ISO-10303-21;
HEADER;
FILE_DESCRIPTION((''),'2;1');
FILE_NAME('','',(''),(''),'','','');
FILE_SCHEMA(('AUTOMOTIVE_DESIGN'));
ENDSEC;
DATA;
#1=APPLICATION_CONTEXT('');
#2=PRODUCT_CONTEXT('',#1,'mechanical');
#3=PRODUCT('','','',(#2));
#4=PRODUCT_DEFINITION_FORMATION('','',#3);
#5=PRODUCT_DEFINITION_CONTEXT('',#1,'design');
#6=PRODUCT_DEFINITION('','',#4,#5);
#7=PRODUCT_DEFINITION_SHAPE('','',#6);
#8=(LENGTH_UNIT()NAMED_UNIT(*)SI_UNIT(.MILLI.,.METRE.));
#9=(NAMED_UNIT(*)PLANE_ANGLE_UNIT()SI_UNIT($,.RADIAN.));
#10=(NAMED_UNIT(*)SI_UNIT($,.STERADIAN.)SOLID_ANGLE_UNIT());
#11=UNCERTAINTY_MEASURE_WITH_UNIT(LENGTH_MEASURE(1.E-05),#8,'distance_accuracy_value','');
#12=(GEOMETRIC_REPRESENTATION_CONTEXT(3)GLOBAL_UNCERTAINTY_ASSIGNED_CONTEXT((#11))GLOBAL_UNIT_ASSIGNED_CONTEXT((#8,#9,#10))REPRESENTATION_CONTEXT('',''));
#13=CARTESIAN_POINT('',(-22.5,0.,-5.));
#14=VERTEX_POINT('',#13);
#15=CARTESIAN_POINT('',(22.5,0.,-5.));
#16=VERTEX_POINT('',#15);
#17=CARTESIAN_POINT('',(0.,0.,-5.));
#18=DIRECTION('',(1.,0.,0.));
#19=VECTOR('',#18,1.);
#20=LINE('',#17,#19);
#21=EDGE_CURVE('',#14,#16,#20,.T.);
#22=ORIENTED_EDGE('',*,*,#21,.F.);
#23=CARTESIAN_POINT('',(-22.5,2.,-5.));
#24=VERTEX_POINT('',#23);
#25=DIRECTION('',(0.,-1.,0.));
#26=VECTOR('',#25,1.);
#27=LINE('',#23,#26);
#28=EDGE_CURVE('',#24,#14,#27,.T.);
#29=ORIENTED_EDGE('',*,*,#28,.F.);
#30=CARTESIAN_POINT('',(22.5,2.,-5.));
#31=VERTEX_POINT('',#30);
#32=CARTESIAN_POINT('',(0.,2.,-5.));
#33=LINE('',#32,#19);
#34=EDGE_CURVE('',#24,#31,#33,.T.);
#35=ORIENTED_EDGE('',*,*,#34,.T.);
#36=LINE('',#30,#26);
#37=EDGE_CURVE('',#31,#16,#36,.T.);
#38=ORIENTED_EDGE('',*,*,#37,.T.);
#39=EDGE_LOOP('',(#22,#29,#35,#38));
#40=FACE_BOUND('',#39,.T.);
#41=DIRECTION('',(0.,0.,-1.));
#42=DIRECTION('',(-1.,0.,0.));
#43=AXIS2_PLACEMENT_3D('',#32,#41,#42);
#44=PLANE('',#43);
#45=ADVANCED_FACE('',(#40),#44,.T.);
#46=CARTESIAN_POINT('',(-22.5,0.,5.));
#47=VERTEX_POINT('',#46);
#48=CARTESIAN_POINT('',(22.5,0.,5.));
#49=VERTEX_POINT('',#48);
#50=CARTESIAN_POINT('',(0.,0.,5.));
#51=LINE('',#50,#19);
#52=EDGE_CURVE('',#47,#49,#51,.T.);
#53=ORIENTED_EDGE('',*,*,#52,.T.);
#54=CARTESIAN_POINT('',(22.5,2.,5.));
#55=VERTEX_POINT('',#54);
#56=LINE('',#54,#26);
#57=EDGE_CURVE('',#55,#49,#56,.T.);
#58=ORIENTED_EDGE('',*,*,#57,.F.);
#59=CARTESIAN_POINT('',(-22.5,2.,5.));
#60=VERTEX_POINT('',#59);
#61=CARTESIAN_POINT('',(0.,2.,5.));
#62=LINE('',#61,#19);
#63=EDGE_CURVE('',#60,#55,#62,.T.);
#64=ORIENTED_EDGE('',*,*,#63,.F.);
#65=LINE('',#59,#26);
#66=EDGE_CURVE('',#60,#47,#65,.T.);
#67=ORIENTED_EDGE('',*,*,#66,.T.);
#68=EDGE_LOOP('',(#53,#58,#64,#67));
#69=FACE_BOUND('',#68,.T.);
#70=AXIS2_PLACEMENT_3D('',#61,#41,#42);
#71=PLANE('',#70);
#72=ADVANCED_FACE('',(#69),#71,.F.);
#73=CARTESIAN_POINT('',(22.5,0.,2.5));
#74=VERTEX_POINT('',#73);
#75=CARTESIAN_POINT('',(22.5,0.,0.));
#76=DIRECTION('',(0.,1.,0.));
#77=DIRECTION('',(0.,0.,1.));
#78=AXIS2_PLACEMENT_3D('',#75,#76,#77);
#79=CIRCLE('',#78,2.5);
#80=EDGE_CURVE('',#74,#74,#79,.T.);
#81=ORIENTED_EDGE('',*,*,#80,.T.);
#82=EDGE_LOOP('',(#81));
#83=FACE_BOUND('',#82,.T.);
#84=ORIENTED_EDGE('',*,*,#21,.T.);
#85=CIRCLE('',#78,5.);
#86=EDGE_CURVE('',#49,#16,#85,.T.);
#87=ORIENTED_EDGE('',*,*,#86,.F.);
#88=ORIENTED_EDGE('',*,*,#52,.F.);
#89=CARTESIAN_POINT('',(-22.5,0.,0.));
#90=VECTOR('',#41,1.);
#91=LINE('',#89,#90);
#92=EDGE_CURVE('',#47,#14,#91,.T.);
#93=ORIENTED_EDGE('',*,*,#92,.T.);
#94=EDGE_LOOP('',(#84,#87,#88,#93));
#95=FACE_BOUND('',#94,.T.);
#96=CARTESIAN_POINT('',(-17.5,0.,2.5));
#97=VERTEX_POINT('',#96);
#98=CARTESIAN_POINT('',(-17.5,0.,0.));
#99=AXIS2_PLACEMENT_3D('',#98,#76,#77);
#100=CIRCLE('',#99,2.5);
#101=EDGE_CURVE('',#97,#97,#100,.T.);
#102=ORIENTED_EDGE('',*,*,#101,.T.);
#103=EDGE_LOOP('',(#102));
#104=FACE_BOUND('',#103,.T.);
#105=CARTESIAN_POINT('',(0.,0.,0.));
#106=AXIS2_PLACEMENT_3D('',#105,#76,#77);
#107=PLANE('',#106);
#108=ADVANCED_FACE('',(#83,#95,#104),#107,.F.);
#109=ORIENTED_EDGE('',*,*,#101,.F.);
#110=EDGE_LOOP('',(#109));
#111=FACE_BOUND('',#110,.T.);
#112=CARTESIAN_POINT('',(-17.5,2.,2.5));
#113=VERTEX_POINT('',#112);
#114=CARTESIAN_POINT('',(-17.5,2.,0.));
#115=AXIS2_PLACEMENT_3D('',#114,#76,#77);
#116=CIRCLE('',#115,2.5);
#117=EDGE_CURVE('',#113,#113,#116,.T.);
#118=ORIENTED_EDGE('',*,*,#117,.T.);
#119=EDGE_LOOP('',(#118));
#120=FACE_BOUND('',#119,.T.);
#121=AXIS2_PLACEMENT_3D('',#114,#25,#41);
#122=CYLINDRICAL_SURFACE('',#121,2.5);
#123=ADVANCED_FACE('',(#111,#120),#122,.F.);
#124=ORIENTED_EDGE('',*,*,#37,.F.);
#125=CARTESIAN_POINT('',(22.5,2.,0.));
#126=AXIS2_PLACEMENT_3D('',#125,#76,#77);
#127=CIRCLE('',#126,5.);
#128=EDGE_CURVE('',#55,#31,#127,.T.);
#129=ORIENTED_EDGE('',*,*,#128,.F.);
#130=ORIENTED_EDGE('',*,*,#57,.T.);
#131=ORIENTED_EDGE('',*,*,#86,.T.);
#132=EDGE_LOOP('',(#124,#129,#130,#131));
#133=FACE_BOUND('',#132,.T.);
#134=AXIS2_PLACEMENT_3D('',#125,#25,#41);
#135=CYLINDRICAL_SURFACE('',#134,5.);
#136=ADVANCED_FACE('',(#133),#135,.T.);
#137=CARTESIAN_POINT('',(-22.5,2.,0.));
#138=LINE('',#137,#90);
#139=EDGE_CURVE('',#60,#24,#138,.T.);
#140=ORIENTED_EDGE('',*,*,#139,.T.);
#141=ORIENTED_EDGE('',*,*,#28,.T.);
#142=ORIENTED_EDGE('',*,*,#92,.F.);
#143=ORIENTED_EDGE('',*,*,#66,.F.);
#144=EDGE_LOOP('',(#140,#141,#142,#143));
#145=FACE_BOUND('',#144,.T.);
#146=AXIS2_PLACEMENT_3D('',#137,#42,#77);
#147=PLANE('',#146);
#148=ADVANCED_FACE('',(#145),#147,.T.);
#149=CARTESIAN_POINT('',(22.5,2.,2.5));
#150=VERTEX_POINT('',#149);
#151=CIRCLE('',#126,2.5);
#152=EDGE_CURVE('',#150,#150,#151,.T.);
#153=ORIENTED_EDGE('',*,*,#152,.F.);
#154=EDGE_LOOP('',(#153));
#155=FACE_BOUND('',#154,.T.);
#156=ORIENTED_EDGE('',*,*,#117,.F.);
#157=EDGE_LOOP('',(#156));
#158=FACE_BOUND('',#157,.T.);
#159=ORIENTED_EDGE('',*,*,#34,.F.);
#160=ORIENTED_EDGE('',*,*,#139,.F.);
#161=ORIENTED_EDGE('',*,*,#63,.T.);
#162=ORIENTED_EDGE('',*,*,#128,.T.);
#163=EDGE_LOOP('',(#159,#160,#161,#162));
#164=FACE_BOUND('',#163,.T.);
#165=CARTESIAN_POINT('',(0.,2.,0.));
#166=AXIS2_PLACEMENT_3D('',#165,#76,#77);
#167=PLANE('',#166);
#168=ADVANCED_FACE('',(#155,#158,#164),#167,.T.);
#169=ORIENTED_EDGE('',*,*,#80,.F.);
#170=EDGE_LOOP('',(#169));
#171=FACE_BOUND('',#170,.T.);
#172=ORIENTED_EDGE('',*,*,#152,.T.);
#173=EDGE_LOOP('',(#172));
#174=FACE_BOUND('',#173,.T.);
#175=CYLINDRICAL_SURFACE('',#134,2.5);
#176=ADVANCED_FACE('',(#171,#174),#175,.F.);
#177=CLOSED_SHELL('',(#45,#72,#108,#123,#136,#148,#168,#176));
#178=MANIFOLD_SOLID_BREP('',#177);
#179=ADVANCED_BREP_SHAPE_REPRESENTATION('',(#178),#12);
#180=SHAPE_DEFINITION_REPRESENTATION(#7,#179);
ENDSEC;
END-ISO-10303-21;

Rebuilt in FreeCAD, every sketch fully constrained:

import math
import FreeCAD as App
import Part
import Sketcher

V = App.Vector

doc = App.newDocument("Part")
body = doc.addObject("PartDesign::Body", "Body")

# Sketch on XZ plane
sketch1 = body.newObject("Sketcher::SketchObject", "Sketch")
sketch1.AttachmentSupport = (doc.getObject("XZ_Plane"), [""])
sketch1.MapMode = "FlatFace"
sketch1.addGeometry([
    Part.LineSegment(V(-22.5, -5, 0), V(-22.5, 5, 0)),  # 0
    Part.LineSegment(V(-22.5, 5, 0), V(22.5, 5, 0)),  # 1
    Part.ArcOfCircle(Part.Circle(V(22.5, 0, 0), V(0, 0, 1), 5), math.radians(-90), math.radians(90)),  # 2
    Part.LineSegment(V(22.5, -5, 0), V(-22.5, -5, 0)),  # 3
    Part.Circle(V(-17.5, 0, 0), V(0, 0, 1), 2.5),  # 4
    Part.Circle(V(22.5, 0, 0), V(0, 0, 1), 2.5),  # 5
], False)
sketch1.addConstraint([
    Sketcher.Constraint("Coincident", 0, 2, 1, 1),
    Sketcher.Constraint("Tangent", 1, 2, 2, 2),
    Sketcher.Constraint("Tangent", 2, 1, 3, 1),
    Sketcher.Constraint("Coincident", 3, 2, 0, 1),
    Sketcher.Constraint("Vertical", 0),
    Sketcher.Constraint("Horizontal", 1),
    Sketcher.Constraint("Horizontal", 3),
    Sketcher.Constraint("Coincident", 5, 3, 2, 3),
    Sketcher.Constraint("Equal", 4, 5),
    Sketcher.Constraint("Symmetric", 0, 2, 2, 1, -1, 1),
    Sketcher.Constraint("PointOnObject", 4, 3, -1),
    Sketcher.Constraint("Diameter", 4, 5.0),
    Sketcher.Constraint("Radius", 2, 5.0),
    Sketcher.Constraint("DistanceX", 1, 1, 1, 2, 45.0),
    Sketcher.Constraint("DistanceX", 4, 3, 2, 3, 40.0),
])
pad1 = body.newObject("PartDesign::Pad", "Pad")
pad1.Profile = sketch1
pad1.Length = 2
pad1.Reversed = True

doc.recompute()
